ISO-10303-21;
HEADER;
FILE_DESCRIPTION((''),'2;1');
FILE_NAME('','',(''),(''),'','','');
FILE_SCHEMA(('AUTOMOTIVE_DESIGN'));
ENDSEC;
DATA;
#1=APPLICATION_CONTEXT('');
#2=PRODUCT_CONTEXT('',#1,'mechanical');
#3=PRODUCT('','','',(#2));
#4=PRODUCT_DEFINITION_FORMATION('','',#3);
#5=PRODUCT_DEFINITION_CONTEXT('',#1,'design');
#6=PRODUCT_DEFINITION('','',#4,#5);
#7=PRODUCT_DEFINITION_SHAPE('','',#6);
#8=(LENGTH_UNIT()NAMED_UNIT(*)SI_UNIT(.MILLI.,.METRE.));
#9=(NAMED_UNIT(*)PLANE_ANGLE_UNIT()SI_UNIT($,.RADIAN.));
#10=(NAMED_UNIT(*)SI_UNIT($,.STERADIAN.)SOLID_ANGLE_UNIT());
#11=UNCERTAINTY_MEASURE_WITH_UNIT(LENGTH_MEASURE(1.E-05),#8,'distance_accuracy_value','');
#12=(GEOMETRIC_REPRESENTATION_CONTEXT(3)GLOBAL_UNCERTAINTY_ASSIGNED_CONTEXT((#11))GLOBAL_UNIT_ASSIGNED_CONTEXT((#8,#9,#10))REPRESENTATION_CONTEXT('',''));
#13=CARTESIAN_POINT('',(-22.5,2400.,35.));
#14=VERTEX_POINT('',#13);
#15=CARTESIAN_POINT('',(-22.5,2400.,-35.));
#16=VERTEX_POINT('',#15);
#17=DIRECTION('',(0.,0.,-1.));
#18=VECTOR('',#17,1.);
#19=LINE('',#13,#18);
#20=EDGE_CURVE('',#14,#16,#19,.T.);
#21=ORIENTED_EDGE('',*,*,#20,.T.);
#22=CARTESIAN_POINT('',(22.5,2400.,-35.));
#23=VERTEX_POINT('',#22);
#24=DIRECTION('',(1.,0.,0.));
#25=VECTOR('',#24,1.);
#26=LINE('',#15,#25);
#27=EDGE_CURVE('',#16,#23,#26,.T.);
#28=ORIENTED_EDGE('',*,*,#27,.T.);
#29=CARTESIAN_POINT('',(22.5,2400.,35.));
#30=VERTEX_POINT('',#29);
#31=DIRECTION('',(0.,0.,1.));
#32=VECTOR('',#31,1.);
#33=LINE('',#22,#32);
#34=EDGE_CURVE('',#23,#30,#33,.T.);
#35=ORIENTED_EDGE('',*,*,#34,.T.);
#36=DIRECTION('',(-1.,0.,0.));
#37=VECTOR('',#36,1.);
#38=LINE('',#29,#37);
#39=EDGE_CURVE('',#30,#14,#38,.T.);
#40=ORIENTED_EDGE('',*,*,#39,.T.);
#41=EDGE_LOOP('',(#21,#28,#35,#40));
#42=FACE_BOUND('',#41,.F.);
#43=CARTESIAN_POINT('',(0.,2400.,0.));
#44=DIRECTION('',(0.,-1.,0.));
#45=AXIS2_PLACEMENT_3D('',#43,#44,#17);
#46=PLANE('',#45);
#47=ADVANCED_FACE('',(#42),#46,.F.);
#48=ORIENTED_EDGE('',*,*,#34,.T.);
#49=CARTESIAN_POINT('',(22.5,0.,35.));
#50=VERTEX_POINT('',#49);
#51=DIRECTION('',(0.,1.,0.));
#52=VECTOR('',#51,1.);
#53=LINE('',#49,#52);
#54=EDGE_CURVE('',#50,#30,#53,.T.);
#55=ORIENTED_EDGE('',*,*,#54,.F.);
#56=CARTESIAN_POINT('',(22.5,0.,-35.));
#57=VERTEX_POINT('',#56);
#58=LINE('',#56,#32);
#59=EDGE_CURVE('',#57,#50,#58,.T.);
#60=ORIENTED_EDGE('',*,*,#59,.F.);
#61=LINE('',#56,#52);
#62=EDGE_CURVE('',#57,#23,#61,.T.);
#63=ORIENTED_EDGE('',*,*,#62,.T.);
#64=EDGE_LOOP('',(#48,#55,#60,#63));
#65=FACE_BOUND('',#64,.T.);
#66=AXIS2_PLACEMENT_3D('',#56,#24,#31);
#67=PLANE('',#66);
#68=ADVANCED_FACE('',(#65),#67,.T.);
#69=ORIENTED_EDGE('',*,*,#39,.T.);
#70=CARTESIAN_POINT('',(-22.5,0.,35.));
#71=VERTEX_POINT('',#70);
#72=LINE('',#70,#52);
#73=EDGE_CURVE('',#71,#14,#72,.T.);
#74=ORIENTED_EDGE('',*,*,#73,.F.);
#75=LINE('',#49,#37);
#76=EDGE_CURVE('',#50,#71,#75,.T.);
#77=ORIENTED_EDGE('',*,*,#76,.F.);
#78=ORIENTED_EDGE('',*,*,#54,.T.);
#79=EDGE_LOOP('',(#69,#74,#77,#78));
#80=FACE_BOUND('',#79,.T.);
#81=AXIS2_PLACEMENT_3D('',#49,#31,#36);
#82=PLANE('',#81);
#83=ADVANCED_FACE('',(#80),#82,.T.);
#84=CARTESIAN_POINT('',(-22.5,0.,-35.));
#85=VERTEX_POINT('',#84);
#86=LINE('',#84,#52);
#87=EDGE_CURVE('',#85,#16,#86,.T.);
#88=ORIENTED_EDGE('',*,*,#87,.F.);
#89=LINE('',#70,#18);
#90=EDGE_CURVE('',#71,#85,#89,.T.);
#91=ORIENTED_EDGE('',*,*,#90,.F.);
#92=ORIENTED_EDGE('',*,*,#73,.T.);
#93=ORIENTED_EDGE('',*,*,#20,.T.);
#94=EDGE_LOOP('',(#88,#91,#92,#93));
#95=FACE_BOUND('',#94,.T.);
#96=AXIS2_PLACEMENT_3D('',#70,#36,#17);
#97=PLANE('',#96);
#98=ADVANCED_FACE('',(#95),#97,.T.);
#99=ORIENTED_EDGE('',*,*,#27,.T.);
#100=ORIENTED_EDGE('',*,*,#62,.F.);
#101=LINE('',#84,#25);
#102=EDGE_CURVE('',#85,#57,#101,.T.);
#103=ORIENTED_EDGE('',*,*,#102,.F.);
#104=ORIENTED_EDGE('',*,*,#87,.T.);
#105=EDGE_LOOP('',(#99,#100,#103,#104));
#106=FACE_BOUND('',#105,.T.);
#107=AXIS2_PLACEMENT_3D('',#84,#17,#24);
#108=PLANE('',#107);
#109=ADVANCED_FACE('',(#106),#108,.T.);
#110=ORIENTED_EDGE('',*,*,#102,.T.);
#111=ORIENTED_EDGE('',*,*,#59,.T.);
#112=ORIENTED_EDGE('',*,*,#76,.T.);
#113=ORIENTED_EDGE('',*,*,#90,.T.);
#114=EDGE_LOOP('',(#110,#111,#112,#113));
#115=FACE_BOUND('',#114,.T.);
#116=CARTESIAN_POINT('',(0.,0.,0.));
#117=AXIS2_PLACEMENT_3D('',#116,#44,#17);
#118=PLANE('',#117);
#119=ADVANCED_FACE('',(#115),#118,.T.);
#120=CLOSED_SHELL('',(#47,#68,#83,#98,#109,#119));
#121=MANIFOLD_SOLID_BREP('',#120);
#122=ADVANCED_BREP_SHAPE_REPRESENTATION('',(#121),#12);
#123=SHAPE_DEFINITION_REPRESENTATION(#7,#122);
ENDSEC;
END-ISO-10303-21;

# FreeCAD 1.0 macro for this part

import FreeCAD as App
import Part
import Sketcher


def add_polygon(sketch, points):
    """Adds a closed chain of lines whose ends are joined by coincident constraints."""
    first, n = sketch.GeometryCount, len(points)
    for a, b in zip(points, points[1:] + points[:1]):
        sketch.addGeometry(Part.LineSegment(App.Vector(*a, 0), App.Vector(*b, 0)), False)
    for i in range(n):
        sketch.addConstraint(Sketcher.Constraint("Coincident", first + i, 2, first + (i + 1) % n, 1))

doc = App.newDocument("Part")
body = doc.addObject("PartDesign::Body", "Body")

# Sketch on XZ plane
sketch1 = body.newObject("Sketcher::SketchObject", "Sketch")
sketch1.AttachmentSupport = (doc.getObject("XZ_Plane"), [""])
sketch1.MapMode = "FlatFace"
add_polygon(sketch1, [(-22, 35), (-22, -35), (22, -35), (22, 35)])  # lines 0-3
sketch1.addConstraint(Sketcher.Constraint("Vertical", 0))
sketch1.addConstraint(Sketcher.Constraint("Horizontal", 1))
sketch1.addConstraint(Sketcher.Constraint("Vertical", 2))
sketch1.addConstraint(Sketcher.Constraint("Horizontal", 3))
sketch1.addConstraint(Sketcher.Constraint("Symmetric", 0, 2, 2, 2, -1, 1))
sketch1.addConstraint(Sketcher.Constraint("DistanceX", 1, 1, 1, 2, 45.0))
sketch1.addConstraint(Sketcher.Constraint("DistanceY", 0, 2, 0, 1, 70.0))
pad1 = body.newObject("PartDesign::Pad", "Pad")
pad1.Profile = sketch1
pad1.Length = 2400
pad1.Reversed = True

doc.recompute()
